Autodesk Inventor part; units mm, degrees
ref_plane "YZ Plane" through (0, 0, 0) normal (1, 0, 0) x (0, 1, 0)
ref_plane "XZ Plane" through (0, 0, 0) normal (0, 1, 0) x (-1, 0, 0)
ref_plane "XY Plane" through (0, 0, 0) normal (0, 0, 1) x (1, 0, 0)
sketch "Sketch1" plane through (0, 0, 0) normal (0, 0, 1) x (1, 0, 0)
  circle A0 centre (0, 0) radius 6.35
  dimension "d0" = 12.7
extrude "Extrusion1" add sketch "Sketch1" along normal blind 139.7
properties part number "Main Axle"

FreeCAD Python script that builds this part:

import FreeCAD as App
import Part
import Sketcher

V = App.Vector
Q = App.Units.Quantity

doc = App.newDocument("Part")
body = doc.addObject("PartDesign::Body", "Body")

# Sketch on XY plane
sketch1 = doc.addObject("Sketcher::SketchObject", "Sketch")
body.addObject(sketch1)
sketch1.AttachmentSupport = (doc.XY_Plane, [""])
sketch1.MapMode = "FlatFace"
sketch1.addGeometry(Part.Circle(V(0, 0, 0), V(0, 0, 1), 6.35), False)
sketch1.addConstraint(Sketcher.Constraint("Coincident", 0, 3, -1, 1))
sketch1.addConstraint(Sketcher.Constraint("Diameter", 0, Q("0.5 in")))
pad1 = doc.addObject("PartDesign::Pad", "Pad")
body.addObject(pad1)
pad1.Profile = sketch1
pad1.Length = Q("5.5 in")

doc.recompute()
